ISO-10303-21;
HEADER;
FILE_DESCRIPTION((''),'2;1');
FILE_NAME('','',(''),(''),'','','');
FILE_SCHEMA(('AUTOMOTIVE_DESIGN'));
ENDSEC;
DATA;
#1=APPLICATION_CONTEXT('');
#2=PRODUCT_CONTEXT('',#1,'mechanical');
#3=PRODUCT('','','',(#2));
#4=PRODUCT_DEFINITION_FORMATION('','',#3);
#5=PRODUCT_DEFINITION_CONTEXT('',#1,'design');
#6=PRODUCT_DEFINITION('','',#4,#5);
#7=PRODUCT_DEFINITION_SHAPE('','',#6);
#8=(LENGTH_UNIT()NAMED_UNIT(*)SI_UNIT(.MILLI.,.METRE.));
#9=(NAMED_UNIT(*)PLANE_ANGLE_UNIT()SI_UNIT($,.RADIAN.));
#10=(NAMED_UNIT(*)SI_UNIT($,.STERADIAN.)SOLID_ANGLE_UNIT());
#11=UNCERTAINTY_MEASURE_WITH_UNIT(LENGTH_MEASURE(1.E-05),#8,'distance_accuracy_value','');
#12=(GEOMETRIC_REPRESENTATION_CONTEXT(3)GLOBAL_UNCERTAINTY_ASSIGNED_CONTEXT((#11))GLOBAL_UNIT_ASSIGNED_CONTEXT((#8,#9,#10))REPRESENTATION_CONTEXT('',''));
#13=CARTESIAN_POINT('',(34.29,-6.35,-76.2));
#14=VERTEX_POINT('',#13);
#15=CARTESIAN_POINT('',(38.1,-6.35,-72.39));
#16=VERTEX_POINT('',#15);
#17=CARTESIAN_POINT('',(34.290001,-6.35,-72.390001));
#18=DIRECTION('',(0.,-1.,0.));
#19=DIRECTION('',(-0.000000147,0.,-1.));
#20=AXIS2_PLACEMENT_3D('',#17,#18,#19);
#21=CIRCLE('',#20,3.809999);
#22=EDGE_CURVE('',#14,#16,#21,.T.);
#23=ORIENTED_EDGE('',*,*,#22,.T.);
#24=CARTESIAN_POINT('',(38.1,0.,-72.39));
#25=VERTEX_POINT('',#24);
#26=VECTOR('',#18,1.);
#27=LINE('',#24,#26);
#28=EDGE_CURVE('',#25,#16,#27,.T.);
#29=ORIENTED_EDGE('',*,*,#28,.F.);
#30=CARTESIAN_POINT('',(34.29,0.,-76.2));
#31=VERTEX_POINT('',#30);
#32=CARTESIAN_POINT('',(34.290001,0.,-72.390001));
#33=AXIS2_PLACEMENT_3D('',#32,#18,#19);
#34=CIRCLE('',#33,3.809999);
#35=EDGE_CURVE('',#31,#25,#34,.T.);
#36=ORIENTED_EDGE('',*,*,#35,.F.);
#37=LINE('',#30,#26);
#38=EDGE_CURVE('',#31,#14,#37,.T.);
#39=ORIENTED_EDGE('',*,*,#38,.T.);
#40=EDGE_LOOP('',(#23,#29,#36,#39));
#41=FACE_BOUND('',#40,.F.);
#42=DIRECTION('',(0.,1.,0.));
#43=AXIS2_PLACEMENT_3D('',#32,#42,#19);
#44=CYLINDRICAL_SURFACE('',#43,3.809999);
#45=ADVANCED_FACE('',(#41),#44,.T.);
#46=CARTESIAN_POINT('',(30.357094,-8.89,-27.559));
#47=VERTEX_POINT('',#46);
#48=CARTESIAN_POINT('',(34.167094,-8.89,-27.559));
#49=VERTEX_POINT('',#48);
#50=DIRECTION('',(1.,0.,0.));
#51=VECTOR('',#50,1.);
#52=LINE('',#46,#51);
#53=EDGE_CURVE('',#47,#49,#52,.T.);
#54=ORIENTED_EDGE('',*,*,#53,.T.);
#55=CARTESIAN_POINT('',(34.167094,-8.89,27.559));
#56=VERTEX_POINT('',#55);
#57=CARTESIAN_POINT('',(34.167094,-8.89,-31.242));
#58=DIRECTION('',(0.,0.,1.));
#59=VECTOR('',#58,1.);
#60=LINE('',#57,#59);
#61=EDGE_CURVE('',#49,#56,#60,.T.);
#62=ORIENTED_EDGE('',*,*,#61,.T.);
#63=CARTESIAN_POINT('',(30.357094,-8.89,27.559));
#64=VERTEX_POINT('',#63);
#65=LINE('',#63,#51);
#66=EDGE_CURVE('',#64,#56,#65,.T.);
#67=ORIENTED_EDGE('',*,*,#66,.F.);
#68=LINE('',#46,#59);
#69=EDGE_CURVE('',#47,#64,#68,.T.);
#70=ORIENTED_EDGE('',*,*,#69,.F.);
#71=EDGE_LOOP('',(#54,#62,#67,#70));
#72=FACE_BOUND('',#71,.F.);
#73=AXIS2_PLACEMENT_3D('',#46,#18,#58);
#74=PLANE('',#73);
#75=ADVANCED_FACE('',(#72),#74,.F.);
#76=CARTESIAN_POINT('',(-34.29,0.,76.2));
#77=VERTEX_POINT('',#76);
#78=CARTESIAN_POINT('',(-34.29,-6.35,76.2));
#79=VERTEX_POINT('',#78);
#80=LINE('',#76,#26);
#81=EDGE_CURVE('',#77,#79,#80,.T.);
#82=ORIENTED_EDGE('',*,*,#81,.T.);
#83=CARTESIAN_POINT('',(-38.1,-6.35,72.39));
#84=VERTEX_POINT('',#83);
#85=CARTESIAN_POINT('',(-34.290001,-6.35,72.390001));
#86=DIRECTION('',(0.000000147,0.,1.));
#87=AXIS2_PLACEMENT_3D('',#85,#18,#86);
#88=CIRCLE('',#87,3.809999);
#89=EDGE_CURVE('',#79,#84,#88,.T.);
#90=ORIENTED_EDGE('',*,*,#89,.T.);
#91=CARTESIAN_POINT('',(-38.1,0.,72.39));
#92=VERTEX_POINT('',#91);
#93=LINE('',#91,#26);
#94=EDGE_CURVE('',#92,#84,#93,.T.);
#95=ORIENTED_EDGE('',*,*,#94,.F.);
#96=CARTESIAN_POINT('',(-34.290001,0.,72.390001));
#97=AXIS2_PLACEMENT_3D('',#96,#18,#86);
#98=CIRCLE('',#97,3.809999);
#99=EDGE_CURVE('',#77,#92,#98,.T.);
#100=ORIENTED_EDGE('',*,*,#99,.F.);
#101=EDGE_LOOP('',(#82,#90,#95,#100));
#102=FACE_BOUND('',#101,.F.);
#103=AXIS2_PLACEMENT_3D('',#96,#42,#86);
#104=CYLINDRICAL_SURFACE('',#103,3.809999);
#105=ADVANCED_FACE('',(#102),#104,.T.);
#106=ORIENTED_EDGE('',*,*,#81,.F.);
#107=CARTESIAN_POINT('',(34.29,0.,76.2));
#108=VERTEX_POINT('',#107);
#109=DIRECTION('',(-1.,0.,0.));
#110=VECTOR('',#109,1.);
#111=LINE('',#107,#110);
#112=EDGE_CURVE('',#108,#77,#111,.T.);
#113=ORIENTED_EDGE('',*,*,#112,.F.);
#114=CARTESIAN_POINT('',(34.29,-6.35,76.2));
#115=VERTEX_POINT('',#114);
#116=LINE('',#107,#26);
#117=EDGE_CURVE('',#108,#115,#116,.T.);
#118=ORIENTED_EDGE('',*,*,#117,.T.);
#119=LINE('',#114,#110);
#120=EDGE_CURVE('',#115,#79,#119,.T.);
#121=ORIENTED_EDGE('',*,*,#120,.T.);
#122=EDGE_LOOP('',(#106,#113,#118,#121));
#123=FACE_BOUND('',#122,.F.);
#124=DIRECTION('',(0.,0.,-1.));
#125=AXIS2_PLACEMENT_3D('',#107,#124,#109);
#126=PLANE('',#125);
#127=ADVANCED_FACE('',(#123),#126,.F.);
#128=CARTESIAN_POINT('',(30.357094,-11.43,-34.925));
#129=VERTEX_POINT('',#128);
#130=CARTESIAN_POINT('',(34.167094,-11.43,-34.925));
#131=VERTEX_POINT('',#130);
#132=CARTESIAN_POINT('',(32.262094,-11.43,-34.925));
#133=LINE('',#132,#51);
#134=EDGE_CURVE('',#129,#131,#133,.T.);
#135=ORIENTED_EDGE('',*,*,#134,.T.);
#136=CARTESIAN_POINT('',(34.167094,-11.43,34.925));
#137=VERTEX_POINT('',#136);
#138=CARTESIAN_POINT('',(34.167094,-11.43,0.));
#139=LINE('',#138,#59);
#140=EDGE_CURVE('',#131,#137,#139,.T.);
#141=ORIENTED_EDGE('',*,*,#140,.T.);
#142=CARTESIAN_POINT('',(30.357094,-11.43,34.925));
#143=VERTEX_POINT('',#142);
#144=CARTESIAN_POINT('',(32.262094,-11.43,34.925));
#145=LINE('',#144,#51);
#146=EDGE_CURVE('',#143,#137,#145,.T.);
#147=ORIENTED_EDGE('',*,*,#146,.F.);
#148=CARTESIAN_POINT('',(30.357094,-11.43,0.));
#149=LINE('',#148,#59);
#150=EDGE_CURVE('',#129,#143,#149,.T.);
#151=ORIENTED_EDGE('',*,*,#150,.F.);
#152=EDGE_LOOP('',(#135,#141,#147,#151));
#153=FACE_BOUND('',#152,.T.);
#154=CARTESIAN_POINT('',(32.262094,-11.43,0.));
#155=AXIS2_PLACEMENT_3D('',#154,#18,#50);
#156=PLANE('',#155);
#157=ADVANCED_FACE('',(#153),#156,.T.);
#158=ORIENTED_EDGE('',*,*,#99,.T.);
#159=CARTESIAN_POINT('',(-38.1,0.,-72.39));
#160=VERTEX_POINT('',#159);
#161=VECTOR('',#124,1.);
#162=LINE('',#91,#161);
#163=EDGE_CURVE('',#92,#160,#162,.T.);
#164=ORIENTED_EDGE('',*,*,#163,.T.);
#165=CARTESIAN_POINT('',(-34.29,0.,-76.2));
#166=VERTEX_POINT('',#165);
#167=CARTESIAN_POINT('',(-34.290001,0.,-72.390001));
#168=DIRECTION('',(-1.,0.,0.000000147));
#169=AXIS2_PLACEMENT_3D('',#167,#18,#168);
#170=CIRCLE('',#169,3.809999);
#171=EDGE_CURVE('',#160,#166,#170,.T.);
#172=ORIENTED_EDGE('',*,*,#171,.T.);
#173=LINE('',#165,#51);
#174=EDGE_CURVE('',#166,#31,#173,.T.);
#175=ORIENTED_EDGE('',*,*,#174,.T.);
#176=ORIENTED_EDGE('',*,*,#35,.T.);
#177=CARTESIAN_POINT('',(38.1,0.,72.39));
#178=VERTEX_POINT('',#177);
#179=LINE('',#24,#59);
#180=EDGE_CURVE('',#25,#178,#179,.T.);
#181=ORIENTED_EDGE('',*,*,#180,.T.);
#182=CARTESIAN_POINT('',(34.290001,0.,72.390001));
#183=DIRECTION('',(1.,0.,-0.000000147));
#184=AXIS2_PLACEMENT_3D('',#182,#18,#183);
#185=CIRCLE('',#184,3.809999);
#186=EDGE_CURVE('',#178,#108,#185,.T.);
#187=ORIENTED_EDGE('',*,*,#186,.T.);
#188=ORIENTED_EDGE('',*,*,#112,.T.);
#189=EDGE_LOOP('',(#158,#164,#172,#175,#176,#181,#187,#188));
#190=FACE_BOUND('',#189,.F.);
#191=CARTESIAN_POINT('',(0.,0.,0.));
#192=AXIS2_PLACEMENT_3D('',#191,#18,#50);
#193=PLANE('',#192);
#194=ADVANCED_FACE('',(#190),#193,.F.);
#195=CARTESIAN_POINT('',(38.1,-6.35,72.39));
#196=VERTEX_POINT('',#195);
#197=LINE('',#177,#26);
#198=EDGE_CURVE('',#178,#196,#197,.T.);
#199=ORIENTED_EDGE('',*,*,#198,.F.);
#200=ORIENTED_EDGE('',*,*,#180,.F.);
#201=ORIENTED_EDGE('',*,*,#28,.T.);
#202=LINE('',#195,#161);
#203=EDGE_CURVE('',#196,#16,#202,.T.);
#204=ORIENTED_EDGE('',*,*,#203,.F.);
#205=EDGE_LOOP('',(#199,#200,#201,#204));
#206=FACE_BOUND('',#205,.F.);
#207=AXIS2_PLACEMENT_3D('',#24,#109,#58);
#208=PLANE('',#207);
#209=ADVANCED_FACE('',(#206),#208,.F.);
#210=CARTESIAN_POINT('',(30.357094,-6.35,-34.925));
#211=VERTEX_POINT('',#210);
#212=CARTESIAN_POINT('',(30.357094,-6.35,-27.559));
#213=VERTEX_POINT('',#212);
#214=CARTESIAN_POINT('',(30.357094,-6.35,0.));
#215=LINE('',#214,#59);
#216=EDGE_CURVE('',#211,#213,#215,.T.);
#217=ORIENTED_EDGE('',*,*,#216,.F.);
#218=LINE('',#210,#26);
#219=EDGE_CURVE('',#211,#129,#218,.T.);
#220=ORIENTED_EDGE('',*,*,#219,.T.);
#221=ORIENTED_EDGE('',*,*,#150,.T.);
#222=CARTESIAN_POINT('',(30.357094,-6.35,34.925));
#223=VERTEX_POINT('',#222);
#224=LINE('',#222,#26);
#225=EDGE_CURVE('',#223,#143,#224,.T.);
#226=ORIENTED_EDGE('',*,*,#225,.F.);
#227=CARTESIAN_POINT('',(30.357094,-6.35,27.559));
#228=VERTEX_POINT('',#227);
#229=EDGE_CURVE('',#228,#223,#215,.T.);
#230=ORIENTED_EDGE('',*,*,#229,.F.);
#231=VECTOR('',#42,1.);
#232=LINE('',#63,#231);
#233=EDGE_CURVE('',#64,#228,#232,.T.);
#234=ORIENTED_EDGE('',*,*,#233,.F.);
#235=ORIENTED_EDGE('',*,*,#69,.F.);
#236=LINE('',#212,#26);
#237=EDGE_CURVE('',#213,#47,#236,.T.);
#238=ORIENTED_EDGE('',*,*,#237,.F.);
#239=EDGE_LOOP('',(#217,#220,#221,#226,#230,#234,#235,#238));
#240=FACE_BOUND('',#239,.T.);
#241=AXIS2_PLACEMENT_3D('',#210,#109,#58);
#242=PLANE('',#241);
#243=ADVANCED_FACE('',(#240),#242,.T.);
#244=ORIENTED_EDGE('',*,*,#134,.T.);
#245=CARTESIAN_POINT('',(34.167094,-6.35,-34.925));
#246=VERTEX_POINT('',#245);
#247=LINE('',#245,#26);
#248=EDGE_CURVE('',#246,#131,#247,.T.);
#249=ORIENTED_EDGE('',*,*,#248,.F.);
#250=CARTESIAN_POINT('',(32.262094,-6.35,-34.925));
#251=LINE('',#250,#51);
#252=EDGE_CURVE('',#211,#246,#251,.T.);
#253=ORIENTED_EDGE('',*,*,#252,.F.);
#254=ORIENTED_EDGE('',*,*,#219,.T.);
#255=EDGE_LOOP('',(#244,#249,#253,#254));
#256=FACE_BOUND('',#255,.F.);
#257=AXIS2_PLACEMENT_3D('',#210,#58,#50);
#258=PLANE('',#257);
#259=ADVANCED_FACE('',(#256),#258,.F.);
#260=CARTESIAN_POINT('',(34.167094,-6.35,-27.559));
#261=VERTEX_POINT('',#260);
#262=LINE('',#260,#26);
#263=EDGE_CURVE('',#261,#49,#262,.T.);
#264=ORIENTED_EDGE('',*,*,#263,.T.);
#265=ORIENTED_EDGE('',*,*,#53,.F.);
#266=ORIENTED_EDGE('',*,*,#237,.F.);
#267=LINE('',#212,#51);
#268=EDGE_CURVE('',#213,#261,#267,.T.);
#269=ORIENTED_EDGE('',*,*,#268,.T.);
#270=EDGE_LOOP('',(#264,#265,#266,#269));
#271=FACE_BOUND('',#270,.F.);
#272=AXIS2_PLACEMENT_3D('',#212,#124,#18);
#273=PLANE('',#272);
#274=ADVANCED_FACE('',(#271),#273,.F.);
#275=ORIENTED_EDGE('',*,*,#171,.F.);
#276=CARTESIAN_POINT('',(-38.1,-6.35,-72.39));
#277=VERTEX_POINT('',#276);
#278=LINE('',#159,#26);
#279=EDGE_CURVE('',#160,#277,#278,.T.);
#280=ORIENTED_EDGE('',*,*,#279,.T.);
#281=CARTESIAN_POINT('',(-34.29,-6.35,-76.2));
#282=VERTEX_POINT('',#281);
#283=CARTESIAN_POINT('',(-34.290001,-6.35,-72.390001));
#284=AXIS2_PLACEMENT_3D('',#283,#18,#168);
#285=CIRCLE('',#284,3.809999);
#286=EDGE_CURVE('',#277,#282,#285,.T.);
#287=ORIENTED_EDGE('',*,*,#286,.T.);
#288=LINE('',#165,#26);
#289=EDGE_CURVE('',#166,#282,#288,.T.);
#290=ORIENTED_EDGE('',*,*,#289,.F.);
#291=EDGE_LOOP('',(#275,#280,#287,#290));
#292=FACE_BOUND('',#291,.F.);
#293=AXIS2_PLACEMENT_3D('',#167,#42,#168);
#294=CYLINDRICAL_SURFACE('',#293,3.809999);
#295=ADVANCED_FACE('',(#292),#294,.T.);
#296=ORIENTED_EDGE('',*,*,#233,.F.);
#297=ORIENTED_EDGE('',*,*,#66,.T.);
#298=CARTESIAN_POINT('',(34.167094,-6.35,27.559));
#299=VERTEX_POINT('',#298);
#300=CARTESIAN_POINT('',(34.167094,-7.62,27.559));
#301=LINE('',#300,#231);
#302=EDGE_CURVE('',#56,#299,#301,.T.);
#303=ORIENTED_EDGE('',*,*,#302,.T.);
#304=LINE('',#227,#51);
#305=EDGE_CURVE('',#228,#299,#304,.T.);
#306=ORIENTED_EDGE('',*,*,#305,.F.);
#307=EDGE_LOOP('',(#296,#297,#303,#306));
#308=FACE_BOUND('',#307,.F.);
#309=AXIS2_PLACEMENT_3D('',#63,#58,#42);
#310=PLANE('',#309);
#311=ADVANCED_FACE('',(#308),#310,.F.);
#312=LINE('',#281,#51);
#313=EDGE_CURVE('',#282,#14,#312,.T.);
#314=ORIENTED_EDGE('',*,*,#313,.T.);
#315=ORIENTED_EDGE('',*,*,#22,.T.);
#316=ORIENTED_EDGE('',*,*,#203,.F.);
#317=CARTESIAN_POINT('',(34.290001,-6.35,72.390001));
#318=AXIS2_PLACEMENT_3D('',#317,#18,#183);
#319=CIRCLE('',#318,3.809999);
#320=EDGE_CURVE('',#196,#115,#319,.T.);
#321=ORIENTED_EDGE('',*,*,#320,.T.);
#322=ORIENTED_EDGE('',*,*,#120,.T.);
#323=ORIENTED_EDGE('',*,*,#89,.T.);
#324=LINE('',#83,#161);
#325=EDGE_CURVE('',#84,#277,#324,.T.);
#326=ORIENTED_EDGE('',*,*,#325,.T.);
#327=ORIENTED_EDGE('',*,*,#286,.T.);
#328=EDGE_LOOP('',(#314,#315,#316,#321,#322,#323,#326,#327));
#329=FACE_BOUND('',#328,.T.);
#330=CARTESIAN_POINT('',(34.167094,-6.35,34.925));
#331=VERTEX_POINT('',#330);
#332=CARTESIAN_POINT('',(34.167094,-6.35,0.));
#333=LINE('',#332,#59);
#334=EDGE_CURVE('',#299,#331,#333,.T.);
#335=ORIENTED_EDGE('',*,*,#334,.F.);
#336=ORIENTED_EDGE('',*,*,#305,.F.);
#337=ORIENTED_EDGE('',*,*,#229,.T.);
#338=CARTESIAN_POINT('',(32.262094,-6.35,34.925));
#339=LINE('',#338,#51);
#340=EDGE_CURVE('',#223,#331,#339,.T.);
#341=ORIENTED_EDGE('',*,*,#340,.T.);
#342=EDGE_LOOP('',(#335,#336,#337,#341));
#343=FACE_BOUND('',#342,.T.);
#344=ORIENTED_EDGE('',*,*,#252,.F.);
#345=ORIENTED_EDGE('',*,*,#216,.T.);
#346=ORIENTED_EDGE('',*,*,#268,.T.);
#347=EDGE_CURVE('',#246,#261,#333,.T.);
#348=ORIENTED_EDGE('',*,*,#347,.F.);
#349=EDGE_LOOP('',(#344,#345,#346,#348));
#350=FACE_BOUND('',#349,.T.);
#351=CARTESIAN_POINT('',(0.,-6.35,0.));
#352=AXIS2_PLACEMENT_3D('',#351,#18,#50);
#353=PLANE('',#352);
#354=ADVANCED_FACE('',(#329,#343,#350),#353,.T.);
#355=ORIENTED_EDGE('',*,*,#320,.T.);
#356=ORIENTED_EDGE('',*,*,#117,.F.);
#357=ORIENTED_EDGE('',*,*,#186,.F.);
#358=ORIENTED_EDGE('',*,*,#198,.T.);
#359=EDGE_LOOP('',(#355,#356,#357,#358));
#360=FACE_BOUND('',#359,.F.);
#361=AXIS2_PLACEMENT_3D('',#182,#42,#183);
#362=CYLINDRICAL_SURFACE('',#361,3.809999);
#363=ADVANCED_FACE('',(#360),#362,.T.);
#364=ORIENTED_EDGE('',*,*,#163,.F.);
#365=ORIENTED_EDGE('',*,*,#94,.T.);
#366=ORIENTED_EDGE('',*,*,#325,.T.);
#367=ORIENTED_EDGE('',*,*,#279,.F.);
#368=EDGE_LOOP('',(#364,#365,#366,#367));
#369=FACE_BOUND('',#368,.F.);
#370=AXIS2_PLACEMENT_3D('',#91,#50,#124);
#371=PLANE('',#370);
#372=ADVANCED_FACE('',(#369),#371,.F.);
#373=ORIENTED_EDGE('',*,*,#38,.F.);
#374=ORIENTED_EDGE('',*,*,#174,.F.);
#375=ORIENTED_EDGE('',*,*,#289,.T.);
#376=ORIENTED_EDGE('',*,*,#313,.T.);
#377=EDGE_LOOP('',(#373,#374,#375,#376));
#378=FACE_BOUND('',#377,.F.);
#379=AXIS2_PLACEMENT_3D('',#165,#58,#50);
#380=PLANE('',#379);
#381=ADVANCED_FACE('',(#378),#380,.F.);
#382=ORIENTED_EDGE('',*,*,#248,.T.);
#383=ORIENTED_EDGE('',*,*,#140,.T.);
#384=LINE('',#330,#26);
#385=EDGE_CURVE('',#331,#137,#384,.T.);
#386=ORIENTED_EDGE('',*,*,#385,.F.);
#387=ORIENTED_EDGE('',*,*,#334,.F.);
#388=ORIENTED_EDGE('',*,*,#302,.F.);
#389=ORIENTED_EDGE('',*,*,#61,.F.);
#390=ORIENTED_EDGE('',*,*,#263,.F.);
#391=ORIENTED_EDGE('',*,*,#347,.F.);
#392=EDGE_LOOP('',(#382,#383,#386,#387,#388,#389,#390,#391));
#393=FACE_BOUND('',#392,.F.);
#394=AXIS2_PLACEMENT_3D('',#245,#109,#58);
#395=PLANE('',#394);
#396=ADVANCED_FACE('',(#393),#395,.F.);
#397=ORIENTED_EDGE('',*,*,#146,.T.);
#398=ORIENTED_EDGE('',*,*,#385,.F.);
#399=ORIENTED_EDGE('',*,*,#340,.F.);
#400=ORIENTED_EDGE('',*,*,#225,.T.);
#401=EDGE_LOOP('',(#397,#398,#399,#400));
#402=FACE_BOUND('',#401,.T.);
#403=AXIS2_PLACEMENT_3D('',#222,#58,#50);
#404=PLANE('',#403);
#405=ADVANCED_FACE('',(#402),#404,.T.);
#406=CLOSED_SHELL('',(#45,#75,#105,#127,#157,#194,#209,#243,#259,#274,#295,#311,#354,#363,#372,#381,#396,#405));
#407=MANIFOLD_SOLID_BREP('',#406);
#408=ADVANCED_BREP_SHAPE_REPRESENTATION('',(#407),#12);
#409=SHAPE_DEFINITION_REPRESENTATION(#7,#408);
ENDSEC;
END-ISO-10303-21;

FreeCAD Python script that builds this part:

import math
import FreeCAD as App
import Part
import Sketcher
Q = App.Units.Quantity


def add_polygon(sketch, points):
    """Adds a closed chain of lines whose ends are joined by coincident constraints."""
    first, n = sketch.GeometryCount, len(points)
    for a, b in zip(points, points[1:] + points[:1]):
        sketch.addGeometry(Part.LineSegment(App.Vector(*a, 0), App.Vector(*b, 0)), False)
    for i in range(n):
        sketch.addConstraint(Sketcher.Constraint("Coincident", first + i, 2, first + (i + 1) % n, 1))

doc = App.newDocument("Part")
body = doc.addObject("PartDesign::Body", "Body")

# Sketch on XZ plane
sketch1 = body.newObject("Sketcher::SketchObject", "Sketch")
sketch1.AttachmentSupport = (doc.getObject("XZ_Plane"), [""])
sketch1.MapMode = "FlatFace"
sketch1.addGeometry([
    Part.ArcOfCircle(Part.Circle(App.Vector(34.3, 72.4, 0), App.Vector(0, 0, 1), 3.8), math.radians(0), math.radians(90)),  # 0
    Part.LineSegment(App.Vector(34.3, 76.2, 0), App.Vector(-34.3, 76.2, 0)),  # 1
    Part.ArcOfCircle(Part.Circle(App.Vector(-34.3, 72.4, 0), App.Vector(0, 0, 1), 3.8), math.radians(90), math.radians(180)),  # 2
    Part.LineSegment(App.Vector(-38.1, 72.4, 0), App.Vector(-38.1, -72.4, 0)),  # 3
    Part.ArcOfCircle(Part.Circle(App.Vector(-34.3, -72.4, 0), App.Vector(0, 0, 1), 3.8), math.radians(180), math.radians(270)),  # 4
    Part.LineSegment(App.Vector(-34.3, -76.2, 0), App.Vector(34.3, -76.2, 0)),  # 5
    Part.ArcOfCircle(Part.Circle(App.Vector(34.3, -72.4, 0), App.Vector(0, 0, 1), 3.8), math.radians(-90), math.radians(0)),  # 6
    Part.LineSegment(App.Vector(38.1, -72.4, 0), App.Vector(38.1, 72.4, 0)),  # 7
], False)
sketch1.addConstraint([
    Sketcher.Constraint("Tangent", 0, 2, 1, 1),
    Sketcher.Constraint("Tangent", 1, 2, 2, 1),
    Sketcher.Constraint("Tangent", 2, 2, 3, 1),
    Sketcher.Constraint("Tangent", 3, 2, 4, 1),
    Sketcher.Constraint("Tangent", 4, 2, 5, 1),
    Sketcher.Constraint("Tangent", 5, 2, 6, 1),
    Sketcher.Constraint("Tangent", 6, 2, 7, 1),
    Sketcher.Constraint("Tangent", 7, 2, 0, 1),
    Sketcher.Constraint("Horizontal", 1),
    Sketcher.Constraint("Vertical", 3),
    Sketcher.Constraint("Horizontal", 5),
    Sketcher.Constraint("Vertical", 7),
    Sketcher.Constraint("Equal", 0, 2),
    Sketcher.Constraint("Equal", 2, 4),
    Sketcher.Constraint("Equal", 4, 6),
    Sketcher.Constraint("Symmetric", 0, 3, 4, 3, -1, 1),
    Sketcher.Constraint("Radius", 0, Q("0.15 in")),
    Sketcher.Constraint("DistanceX", 1, 2, 1, 1, Q("2.7 in")),
    Sketcher.Constraint("DistanceY", 3, 2, 3, 1, Q("5.7 in")),
])
pad1 = body.newObject("PartDesign::Pad", "Pad")
pad1.Profile = sketch1
pad1.Length = Q("0.25 in")

# Sketch on XZ plane
sketch2 = body.newObject("Sketcher::SketchObject", "Sketch001")
sketch2.AttachmentSupport = (doc.getObject("XZ_Plane"), [""])
sketch2.MapMode = "FlatFace"
sketch2.AttachmentOffset = App.Placement(App.Vector(0, 0, 0.25 * 25.4), App.Rotation())
add_polygon(sketch2, [(30.4, 34.9), (30.4, -34.9), (34.2, -34.9), (34.2, 34.9)])  # lines 0-3
sketch2.addConstraint([
    Sketcher.Constraint("Vertical", 0),
    Sketcher.Constraint("Horizontal", 1),
    Sketcher.Constraint("Vertical", 2),
    Sketcher.Constraint("Horizontal", 3),
    Sketcher.Constraint("DistanceX", 1, 1, 1, 2, Q("0.15 in")),
    Sketcher.Constraint("DistanceY", 0, 2, 0, 1, Q("2.75 in")),
    Sketcher.Constraint("DistanceY", 0, 2, -1, 1, Q("1.375 in")),
    Sketcher.Constraint("DistanceX", -1, 1, 0, 2, 30.357094),
])
pad2 = body.newObject("PartDesign::Pad", "Pad001")
pad2.Profile = sketch2
pad2.Length = Q("0.2 in")

# Sketch on YZ plane
sketch3 = body.newObject("Sketcher::SketchObject", "Sketch002")
sketch3.AttachmentSupport = (doc.getObject("YZ_Plane"), [""])
sketch3.MapMode = "FlatFace"
sketch3.AttachmentOffset = App.Placement(App.Vector(0, 0, 30.357094), App.Rotation())
add_polygon(sketch3, [(-6.3, 27.6), (-6.3, -27.6), (-8.9, -27.6), (-8.9, 27.6)])  # lines 0-3
sketch3.addConstraint([
    Sketcher.Constraint("Vertical", 0),
    Sketcher.Constraint("Horizontal", 1),
    Sketcher.Constraint("Vertical", 2),
    Sketcher.Constraint("Horizontal", 3),
    Sketcher.Constraint("DistanceX", 1, 2, 1, 1, Q("0.1 in")),
    Sketcher.Constraint("DistanceY", 0, 2, 0, 1, Q("2.17 in")),
    Sketcher.Constraint("DistanceX", 0, 2, -1, 1, Q("0.25 in")),
    Sketcher.Constraint("DistanceY", 0, 2, -1, 1, Q("1.085 in")),
])
pocket1 = body.newObject("PartDesign::Pocket", "Pocket")
pocket1.Profile = sketch3
pocket1.Length = Q("1 in")
pocket1.Reversed = True

doc.recompute()
